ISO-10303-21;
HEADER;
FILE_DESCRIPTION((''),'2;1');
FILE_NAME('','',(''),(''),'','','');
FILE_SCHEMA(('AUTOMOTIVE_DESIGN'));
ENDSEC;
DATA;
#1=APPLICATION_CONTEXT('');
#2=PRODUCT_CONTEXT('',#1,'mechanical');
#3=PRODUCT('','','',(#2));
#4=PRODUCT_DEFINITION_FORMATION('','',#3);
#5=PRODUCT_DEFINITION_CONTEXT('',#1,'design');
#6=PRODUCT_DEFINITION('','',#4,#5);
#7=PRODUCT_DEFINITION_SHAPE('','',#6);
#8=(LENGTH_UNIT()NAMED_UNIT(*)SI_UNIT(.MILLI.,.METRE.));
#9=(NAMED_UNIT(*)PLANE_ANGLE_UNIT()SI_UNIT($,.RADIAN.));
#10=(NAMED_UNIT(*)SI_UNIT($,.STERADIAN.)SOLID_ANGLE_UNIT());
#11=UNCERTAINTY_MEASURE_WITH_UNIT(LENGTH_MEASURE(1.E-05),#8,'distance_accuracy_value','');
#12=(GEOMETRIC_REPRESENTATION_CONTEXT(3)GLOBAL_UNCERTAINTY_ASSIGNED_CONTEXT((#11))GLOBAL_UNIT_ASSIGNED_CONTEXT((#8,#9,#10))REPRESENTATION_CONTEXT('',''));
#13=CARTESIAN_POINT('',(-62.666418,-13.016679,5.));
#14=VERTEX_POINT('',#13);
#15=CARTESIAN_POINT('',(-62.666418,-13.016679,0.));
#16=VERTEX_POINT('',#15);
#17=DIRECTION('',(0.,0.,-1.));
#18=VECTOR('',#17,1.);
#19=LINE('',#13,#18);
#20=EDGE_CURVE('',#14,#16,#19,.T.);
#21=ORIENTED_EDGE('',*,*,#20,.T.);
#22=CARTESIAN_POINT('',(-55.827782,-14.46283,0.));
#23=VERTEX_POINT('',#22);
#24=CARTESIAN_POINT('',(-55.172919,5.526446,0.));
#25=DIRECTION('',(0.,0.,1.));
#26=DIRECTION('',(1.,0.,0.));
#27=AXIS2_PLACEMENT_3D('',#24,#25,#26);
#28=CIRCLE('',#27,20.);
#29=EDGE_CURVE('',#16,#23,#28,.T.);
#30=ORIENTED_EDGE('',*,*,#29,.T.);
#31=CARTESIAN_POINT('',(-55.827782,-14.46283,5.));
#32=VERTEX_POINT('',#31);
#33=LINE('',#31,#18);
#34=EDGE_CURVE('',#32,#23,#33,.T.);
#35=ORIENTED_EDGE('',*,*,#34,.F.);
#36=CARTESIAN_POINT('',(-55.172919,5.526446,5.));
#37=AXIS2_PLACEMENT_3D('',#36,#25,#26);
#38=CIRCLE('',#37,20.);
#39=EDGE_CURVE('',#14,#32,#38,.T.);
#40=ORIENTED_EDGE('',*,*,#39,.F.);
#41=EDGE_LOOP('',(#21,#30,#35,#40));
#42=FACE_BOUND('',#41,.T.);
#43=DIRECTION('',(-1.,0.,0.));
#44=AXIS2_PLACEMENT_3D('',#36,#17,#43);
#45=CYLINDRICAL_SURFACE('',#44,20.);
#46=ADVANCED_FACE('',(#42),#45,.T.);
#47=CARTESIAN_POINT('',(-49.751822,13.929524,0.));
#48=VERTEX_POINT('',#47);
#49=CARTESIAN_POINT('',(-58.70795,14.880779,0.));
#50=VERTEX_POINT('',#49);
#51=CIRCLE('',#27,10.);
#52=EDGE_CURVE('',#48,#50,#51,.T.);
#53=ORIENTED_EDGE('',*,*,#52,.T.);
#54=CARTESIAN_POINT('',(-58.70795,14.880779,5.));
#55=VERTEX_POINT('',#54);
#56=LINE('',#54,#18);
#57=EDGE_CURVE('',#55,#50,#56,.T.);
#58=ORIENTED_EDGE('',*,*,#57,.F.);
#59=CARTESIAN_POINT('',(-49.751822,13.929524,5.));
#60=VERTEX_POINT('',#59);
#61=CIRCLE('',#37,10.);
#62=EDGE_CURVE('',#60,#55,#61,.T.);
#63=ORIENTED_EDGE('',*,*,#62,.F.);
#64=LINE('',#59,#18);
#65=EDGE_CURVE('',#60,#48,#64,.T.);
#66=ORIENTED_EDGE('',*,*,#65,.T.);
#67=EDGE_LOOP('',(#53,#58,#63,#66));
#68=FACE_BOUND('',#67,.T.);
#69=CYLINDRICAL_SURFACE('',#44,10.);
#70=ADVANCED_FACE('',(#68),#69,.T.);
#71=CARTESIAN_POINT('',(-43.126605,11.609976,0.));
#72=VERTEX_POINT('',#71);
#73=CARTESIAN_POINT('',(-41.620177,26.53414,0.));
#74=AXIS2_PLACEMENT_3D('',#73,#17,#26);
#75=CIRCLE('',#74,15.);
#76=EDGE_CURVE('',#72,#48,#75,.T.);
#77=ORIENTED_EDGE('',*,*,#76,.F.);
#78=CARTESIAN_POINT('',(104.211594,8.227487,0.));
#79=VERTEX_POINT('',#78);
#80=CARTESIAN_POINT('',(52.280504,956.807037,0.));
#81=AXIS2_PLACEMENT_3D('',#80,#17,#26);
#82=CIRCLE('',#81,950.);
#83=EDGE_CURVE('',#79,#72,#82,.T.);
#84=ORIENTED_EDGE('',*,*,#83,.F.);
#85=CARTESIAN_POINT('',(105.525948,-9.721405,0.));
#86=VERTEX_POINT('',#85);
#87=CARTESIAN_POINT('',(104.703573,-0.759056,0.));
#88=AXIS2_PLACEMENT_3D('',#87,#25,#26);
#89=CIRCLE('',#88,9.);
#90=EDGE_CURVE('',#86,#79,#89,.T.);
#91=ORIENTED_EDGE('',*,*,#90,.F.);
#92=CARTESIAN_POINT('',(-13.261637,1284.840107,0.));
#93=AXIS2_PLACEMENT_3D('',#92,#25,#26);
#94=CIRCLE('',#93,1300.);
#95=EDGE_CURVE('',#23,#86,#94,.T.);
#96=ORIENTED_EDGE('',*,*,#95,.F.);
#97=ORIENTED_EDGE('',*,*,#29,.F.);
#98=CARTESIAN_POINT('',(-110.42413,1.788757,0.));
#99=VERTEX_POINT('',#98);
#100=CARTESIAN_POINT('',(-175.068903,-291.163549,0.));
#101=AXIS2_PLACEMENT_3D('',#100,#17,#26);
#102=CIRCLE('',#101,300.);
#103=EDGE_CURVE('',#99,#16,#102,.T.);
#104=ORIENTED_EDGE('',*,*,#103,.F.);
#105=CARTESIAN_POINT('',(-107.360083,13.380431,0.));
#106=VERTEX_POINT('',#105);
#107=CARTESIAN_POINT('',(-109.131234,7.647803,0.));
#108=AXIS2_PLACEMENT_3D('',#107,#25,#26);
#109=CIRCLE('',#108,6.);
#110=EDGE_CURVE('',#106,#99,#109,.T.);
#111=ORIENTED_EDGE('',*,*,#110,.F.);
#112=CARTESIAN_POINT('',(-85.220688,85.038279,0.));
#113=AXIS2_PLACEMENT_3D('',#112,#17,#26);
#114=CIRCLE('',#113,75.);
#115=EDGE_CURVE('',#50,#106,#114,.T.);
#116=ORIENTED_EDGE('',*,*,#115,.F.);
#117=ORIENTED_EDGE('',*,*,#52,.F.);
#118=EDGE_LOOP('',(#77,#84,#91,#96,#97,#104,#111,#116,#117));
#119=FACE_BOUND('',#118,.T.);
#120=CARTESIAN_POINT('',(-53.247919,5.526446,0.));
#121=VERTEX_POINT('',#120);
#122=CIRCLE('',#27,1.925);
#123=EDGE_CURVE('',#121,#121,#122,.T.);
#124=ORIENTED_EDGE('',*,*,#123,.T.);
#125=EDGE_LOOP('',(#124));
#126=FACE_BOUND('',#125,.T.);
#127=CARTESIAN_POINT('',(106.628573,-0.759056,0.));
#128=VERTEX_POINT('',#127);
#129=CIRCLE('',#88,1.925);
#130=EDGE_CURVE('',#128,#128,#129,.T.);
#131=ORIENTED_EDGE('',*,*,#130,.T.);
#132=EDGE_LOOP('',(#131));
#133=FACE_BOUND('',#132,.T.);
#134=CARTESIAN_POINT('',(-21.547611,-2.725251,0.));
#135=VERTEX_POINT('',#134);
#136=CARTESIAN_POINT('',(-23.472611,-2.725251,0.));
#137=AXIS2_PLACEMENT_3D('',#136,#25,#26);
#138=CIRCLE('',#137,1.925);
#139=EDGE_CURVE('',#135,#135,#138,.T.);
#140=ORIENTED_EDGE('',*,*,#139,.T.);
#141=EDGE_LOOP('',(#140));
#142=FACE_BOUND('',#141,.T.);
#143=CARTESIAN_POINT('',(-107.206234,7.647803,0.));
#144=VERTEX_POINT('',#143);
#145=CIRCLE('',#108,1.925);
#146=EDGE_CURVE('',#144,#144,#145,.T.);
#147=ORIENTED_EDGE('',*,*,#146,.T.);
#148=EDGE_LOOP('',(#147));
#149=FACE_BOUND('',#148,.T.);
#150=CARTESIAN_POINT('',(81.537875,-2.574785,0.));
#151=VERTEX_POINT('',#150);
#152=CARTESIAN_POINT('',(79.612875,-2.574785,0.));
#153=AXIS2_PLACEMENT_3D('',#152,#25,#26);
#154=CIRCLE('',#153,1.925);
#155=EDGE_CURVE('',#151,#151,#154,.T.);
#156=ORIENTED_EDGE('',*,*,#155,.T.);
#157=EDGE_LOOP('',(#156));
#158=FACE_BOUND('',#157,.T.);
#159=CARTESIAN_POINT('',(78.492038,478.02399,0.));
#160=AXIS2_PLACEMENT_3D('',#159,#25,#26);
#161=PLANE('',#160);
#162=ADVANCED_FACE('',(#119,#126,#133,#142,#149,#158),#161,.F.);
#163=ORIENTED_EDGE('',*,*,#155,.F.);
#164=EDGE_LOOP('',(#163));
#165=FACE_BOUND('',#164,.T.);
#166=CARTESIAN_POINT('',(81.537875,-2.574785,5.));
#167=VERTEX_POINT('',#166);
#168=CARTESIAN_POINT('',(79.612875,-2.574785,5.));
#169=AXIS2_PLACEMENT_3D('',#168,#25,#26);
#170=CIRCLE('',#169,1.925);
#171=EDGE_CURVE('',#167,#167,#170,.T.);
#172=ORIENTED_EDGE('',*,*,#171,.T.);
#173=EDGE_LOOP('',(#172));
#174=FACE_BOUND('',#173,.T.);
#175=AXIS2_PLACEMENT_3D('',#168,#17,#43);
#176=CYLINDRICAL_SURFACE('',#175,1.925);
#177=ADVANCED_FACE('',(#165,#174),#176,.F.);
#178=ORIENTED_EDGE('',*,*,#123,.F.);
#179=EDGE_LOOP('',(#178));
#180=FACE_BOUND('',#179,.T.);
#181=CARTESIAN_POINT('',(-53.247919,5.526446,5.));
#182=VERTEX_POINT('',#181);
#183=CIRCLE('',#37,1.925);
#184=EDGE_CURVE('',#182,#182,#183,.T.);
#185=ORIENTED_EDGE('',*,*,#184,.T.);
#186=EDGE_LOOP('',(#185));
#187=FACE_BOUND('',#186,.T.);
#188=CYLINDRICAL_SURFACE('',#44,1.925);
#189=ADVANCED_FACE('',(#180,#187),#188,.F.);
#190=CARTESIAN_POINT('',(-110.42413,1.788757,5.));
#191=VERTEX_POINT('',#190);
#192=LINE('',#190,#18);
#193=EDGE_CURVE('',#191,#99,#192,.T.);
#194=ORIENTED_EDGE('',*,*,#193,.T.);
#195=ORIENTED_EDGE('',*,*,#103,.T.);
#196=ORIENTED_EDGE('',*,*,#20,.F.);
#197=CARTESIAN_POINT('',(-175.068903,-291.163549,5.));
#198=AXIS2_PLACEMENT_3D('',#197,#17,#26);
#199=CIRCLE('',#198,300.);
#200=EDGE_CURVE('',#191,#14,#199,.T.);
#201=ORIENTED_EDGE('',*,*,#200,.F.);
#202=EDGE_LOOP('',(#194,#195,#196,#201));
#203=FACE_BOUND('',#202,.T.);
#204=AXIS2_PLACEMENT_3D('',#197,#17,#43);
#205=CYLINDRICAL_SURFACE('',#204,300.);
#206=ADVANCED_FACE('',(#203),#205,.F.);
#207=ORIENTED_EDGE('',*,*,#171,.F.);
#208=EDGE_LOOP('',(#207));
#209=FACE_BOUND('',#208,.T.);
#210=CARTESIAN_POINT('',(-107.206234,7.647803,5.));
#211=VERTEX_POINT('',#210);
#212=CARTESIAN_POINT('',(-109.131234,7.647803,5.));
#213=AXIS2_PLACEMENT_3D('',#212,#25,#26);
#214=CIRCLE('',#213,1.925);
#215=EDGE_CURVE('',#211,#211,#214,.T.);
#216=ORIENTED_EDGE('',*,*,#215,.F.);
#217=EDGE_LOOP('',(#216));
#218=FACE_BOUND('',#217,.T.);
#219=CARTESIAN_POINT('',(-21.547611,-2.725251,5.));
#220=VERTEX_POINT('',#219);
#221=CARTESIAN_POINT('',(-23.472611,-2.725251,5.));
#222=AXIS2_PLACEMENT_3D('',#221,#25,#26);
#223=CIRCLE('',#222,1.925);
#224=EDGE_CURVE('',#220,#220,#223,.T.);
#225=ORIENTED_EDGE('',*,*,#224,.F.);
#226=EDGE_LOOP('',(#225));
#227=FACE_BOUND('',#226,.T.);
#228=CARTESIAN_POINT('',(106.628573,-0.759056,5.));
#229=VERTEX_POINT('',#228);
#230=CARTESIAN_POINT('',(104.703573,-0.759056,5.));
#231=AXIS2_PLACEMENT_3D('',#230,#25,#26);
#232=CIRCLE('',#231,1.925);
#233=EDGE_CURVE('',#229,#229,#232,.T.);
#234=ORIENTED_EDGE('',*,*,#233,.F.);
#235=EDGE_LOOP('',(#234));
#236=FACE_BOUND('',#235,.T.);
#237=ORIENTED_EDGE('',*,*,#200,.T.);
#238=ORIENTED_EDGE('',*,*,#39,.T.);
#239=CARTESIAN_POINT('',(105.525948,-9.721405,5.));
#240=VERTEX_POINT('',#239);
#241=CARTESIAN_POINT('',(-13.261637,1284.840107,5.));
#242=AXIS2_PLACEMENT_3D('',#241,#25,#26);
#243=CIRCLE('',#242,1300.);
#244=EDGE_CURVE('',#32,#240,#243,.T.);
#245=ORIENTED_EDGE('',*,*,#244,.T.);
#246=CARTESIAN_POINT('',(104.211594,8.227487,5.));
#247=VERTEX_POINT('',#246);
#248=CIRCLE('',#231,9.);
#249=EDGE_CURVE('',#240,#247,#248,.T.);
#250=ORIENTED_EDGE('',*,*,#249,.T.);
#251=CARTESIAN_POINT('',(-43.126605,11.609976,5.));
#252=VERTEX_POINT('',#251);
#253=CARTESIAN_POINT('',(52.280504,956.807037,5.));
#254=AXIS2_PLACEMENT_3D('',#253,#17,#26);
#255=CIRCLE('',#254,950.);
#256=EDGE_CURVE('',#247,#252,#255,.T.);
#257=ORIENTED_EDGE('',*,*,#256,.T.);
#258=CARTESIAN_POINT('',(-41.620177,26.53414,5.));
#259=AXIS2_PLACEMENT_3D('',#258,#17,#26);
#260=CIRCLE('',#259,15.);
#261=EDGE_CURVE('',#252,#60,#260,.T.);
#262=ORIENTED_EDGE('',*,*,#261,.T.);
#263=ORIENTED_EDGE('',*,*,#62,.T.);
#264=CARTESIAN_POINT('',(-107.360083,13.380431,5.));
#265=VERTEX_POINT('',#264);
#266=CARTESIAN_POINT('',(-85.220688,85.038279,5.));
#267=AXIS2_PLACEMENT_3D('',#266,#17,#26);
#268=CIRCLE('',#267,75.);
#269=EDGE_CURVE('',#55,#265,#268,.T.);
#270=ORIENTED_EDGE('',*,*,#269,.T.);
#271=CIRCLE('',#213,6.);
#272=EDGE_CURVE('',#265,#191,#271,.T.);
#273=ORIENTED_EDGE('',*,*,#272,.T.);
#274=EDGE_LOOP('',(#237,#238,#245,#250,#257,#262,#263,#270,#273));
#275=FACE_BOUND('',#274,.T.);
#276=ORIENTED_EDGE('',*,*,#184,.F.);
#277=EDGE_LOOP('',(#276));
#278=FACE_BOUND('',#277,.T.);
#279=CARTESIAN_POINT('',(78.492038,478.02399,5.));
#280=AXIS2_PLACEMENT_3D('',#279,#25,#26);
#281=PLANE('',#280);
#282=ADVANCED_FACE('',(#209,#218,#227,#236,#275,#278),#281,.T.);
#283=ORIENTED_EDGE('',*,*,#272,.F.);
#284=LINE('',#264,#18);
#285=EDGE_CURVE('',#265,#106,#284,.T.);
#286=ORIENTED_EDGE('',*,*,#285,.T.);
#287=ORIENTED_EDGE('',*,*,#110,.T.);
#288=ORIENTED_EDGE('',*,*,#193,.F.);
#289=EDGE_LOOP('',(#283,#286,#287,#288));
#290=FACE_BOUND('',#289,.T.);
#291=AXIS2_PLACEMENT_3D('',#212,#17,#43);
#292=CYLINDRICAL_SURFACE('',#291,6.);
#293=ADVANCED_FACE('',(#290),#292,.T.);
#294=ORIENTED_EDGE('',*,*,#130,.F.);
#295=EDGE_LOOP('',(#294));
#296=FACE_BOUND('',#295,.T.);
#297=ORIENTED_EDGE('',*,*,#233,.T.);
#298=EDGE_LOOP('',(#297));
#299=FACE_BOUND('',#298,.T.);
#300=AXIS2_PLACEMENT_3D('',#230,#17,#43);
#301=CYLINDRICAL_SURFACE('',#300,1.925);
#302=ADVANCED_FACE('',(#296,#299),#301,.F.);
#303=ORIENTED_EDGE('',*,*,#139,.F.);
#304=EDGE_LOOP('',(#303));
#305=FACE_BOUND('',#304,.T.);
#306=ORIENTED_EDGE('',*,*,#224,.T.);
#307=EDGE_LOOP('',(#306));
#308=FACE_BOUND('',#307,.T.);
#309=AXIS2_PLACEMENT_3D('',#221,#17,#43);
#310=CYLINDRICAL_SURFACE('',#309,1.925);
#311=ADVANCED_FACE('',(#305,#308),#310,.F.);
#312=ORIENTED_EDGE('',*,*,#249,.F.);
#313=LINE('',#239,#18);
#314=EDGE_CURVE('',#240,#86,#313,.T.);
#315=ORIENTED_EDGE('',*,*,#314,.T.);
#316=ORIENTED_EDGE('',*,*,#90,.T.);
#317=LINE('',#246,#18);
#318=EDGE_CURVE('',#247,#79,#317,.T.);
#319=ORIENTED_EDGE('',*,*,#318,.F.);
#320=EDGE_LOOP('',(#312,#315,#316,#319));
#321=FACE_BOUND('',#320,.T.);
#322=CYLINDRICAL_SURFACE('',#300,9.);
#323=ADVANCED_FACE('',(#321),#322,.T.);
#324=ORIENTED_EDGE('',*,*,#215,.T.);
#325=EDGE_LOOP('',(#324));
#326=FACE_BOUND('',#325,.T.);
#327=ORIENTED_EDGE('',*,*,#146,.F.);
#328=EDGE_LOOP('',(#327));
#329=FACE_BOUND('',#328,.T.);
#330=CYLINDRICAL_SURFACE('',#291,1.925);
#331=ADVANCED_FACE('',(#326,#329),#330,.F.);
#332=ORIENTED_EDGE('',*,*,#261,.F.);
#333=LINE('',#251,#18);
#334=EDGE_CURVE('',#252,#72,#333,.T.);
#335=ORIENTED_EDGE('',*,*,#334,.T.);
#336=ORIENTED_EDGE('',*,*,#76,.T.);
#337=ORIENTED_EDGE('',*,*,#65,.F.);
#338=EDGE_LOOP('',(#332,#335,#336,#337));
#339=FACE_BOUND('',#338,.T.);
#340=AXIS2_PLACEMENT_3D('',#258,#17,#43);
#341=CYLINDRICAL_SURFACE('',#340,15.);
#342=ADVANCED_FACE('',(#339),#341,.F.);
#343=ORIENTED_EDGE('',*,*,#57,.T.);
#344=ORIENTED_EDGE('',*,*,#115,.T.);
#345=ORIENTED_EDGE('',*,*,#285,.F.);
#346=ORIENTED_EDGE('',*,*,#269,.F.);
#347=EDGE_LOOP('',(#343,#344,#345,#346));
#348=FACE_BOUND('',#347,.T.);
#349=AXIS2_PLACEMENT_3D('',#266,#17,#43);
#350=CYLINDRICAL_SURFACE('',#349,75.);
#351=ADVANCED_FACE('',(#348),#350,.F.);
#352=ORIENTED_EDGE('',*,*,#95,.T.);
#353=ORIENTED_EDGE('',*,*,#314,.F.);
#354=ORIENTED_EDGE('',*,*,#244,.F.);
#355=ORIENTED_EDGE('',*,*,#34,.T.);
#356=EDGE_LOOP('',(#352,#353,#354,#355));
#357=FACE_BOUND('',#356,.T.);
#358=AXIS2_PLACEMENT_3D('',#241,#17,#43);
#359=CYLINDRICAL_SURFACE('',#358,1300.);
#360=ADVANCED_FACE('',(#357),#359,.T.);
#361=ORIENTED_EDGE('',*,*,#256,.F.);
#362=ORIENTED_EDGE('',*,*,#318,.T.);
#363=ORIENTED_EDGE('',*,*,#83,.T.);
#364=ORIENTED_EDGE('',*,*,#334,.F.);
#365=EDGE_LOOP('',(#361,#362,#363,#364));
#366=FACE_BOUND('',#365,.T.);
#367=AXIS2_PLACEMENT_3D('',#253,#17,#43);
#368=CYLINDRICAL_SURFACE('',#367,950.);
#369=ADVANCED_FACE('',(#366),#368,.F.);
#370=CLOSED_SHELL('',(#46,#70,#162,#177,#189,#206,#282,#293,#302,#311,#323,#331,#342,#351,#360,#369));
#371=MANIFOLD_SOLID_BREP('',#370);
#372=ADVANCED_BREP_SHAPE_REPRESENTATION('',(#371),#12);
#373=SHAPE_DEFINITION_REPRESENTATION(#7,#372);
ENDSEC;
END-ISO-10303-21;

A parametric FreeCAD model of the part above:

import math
import FreeCAD as App
import Part
import Sketcher

V = App.Vector

doc = App.newDocument("Part")
body = doc.addObject("PartDesign::Body", "Body")

sketch1 = body.newObject("Sketcher::SketchObject", "Sketch")
sketch1.AttachmentSupport = (doc.getObject("XY_Plane"), [""])
sketch1.MapMode = "FlatFace"
sketch1.addGeometry(Part.ArcOfCircle(Part.Circle(V(-13.261637, 1284.840107, 0), V(0, 0, 1), 1300), math.radians(-91.876382), math.radians(-84.757281)), False)
sketch1.addGeometry(Part.ArcOfCircle(Part.Circle(V(104.703573, -0.759056, 0), V(0, 0, 1), 9), math.radians(-84.757281), math.radians(93.133596)), False)
sketch1.addGeometry(Part.ArcOfCircle(Part.Circle(V(52.280504, 956.807037, 0), V(0, 0, 1), 950), math.radians(-95.763848), math.radians(-86.866404)), False)
sketch1.addGeometry(Part.ArcOfCircle(Part.Circle(V(-41.620177, 26.53414, 0), V(0, 0, 1), 15), math.radians(-122.827367), math.radians(-95.763848)), False)
sketch1.addGeometry(Part.ArcOfCircle(Part.Circle(V(-55.172919, 5.526446, 0), V(0, 0, 1), 10), math.radians(57.172633), math.radians(110.701735)), False)
sketch1.addGeometry(Part.ArcOfCircle(Part.Circle(V(-85.220688, 85.038279, 0), V(0, 0, 1), 75), math.radians(-107.169047), math.radians(-69.298265)), False)
sketch1.addGeometry(Part.ArcOfCircle(Part.Circle(V(-109.131234, 7.647803, 0), V(0, 0, 1), 6), math.radians(72.830953), math.radians(257.556159)), False)
sketch1.addGeometry(Part.ArcOfCircle(Part.Circle(V(-175.068903, -291.163549, 0), V(0, 0, 1), 300), math.radians(67.995776), math.radians(77.556159)), False)
sketch1.addGeometry(Part.ArcOfCircle(Part.Circle(V(-55.172919, 5.526446, 0), V(0, 0, 1), 20), math.radians(-112.004224), math.radians(-91.876382)), False)
sketch1.addGeometry(Part.Circle(V(-23.472611, -2.725251, 0), V(0, 0, 1), 1.925), False)
sketch1.addGeometry(Part.Circle(V(79.612875, -2.574785, 0), V(0, 0, 1), 1.925), False)
sketch1.addGeometry(Part.Circle(V(104.703573, -0.759056, 0), V(0, 0, 1), 1.925), False)
sketch1.addGeometry(Part.Circle(V(-55.172919, 5.526446, 0), V(0, 0, 1), 1.925), False)
sketch1.addGeometry(Part.Circle(V(-109.131234, 7.647803, 0), V(0, 0, 1), 1.925), False)
sketch1.addConstraint(Sketcher.Constraint("Tangent", 0, 2, 1, 1))
sketch1.addConstraint(Sketcher.Constraint("Tangent", 1, 2, 2, 2))
sketch1.addConstraint(Sketcher.Constraint("Tangent", 2, 1, 3, 2))
sketch1.addConstraint(Sketcher.Constraint("Tangent", 3, 1, 4, 1))
sketch1.addConstraint(Sketcher.Constraint("Tangent", 4, 2, 5, 2))
sketch1.addConstraint(Sketcher.Constraint("Tangent", 5, 1, 6, 1))
sketch1.addConstraint(Sketcher.Constraint("Tangent", 6, 2, 7, 2))
sketch1.addConstraint(Sketcher.Constraint("Tangent", 7, 1, 8, 1))
sketch1.addConstraint(Sketcher.Constraint("Tangent", 8, 2, 0, 1))
sketch1.addConstraint(Sketcher.Constraint("Coincident", 8, 3, 4, 3))
sketch1.addConstraint(Sketcher.Constraint("Coincident", 11, 3, 1, 3))
sketch1.addConstraint(Sketcher.Constraint("Coincident", 12, 3, 4, 3))
sketch1.addConstraint(Sketcher.Constraint("Coincident", 13, 3, 6, 3))
sketch1.addConstraint(Sketcher.Constraint("Equal", 9, 10))
sketch1.addConstraint(Sketcher.Constraint("Equal", 10, 11))
sketch1.addConstraint(Sketcher.Constraint("Equal", 11, 12))
sketch1.addConstraint(Sketcher.Constraint("Equal", 12, 13))
sketch1.addConstraint(Sketcher.Constraint("Radius", 0, 1300.0))
sketch1.addConstraint(Sketcher.Constraint("Radius", 1, 9.0))
sketch1.addConstraint(Sketcher.Constraint("Radius", 2, 950.0))
sketch1.addConstraint(Sketcher.Constraint("Radius", 3, 15.0))
sketch1.addConstraint(Sketcher.Constraint("Radius", 4, 10.0))
sketch1.addConstraint(Sketcher.Constraint("Radius", 5, 75.0))
sketch1.addConstraint(Sketcher.Constraint("Radius", 6, 6.0))
sketch1.addConstraint(Sketcher.Constraint("Radius", 7, 300.0))
sketch1.addConstraint(Sketcher.Constraint("Radius", 8, 20.0))
sketch1.addConstraint(Sketcher.Constraint("Diameter", 9, 3.85))
sketch1.addConstraint(Sketcher.Constraint("DistanceX", 10, 3, 1, 3, 25.090698))
sketch1.addConstraint(Sketcher.Constraint("DistanceY", -1, 1, 3, 3, 26.53414))
sketch1.addConstraint(Sketcher.Constraint("DistanceX", 4, 3, -1, 1, 55.172919))
sketch1.addConstraint(Sketcher.Constraint("DistanceY", -1, 1, 5, 3, 85.038279))
sketch1.addConstraint(Sketcher.Constraint("DistanceY", 7, 3, -1, 1, 291.163549))
sketch1.addConstraint(Sketcher.Constraint("DistanceX", 9, 3, -1, 1, 23.472611))
sketch1.addConstraint(Sketcher.Constraint("DistanceY", 9, 3, -1, 1, 2.725251))
sketch1.addConstraint(Sketcher.Constraint("DistanceY", -1, 1, 4, 2, 14.880779))
sketch1.addConstraint(Sketcher.Constraint("DistanceX", 0, 3, 1, 3, 117.965209))
sketch1.addConstraint(Sketcher.Constraint("DistanceX", 0, 3, 2, 3, 65.54214))
sketch1.addConstraint(Sketcher.Constraint("DistanceY", 10, 3, 1, 3, 1.815729))
pad1 = body.newObject("PartDesign::Pad", "Pad")
pad1.Profile = sketch1
pad1.Length = 5

doc.recompute()
